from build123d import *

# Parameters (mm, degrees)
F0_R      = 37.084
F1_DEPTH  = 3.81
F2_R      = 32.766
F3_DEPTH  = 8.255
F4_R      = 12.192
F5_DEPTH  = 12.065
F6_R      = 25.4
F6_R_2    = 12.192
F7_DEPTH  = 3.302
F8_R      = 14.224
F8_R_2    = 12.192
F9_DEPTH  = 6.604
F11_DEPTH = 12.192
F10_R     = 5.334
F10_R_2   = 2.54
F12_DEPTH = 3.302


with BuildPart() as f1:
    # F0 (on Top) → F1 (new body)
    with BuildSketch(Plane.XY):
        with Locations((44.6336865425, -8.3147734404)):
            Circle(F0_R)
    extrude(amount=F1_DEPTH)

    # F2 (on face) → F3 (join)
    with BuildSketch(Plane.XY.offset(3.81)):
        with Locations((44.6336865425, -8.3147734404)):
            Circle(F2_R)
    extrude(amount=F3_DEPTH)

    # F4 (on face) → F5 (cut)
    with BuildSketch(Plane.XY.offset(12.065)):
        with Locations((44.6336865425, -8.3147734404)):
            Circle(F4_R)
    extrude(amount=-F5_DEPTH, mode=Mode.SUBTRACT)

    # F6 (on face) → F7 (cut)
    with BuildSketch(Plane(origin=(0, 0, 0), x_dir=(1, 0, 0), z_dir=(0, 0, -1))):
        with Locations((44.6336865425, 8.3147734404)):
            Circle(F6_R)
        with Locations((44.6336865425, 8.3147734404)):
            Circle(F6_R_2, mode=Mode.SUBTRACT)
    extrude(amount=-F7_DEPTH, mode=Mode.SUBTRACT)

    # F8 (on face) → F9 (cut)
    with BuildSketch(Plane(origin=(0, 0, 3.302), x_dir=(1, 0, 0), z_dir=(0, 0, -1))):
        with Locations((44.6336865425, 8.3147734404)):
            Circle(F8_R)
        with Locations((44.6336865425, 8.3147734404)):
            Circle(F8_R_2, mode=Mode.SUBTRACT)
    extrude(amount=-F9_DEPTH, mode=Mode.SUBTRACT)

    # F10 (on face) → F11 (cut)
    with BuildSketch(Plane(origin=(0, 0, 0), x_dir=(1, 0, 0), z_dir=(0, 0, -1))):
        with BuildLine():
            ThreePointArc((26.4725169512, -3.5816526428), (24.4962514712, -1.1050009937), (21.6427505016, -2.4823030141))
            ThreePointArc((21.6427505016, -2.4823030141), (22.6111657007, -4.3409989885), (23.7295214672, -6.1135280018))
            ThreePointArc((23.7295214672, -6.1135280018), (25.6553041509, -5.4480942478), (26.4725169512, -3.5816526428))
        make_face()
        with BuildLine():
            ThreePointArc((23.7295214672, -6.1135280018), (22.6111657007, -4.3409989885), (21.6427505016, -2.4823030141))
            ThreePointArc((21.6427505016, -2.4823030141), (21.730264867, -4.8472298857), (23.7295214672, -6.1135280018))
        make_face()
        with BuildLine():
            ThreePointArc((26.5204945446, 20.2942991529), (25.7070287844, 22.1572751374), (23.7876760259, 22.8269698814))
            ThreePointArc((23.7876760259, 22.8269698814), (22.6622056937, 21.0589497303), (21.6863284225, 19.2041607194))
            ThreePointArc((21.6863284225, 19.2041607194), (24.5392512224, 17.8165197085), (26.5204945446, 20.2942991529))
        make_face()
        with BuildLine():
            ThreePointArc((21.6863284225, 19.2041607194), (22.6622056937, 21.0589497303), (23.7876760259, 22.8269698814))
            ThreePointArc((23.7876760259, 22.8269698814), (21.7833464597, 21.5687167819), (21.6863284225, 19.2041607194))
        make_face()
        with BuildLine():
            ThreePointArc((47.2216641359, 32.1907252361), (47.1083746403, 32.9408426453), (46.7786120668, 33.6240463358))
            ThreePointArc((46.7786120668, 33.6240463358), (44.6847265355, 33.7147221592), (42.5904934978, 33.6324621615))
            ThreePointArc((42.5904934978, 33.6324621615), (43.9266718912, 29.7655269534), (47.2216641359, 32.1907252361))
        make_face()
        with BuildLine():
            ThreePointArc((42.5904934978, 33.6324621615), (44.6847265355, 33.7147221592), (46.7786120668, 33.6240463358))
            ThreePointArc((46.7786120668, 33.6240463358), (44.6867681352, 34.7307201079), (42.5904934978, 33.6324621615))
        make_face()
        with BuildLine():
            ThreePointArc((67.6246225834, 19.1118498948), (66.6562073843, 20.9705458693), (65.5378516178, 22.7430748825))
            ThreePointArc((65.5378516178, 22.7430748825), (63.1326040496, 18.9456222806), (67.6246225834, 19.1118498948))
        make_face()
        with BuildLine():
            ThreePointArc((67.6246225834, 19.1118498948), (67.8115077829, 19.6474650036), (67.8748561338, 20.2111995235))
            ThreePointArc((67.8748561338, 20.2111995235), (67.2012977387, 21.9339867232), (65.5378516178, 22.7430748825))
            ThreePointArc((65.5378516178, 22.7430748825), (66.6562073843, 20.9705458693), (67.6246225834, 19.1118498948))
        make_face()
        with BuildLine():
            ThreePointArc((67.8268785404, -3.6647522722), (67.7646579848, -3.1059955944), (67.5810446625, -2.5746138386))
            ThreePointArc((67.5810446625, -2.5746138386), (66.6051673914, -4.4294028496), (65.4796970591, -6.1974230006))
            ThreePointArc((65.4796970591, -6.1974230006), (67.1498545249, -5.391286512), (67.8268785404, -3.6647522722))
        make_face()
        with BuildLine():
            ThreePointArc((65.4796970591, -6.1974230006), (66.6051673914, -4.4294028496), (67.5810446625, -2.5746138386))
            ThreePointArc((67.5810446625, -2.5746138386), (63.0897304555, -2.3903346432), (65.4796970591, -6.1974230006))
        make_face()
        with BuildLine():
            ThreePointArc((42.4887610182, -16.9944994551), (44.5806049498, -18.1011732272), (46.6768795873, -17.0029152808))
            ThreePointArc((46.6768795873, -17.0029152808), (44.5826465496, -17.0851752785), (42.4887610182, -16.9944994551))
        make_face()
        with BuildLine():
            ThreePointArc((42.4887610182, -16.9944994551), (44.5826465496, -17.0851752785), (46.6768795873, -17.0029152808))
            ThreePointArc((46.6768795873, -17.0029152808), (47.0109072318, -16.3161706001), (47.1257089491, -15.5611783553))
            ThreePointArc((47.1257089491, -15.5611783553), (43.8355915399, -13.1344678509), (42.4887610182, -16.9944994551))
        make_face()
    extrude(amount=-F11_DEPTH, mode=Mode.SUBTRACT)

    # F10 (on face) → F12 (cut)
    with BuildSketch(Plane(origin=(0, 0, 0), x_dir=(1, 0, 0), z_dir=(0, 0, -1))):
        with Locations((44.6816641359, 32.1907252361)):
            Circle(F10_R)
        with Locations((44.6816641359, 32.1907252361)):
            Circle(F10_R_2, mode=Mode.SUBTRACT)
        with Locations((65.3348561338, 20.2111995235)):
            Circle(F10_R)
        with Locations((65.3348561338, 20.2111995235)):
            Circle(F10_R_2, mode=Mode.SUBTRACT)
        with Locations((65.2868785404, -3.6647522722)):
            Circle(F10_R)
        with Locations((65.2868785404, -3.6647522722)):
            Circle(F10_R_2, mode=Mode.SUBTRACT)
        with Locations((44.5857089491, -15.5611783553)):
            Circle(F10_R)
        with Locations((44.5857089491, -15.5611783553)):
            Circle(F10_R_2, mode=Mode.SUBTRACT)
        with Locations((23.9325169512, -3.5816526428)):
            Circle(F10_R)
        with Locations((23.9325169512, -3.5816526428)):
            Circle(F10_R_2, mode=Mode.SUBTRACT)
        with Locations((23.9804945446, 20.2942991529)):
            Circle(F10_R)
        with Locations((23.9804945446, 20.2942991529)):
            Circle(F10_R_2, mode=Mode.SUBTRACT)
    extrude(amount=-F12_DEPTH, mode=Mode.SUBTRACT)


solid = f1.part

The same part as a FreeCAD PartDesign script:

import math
import FreeCAD as App
import Part
import Sketcher
from FreeCAD import Vector
Q = App.Units.Quantity

doc = App.newDocument("Part")
body = doc.addObject("PartDesign::Body", "Body")

sketch1 = body.newObject("Sketcher::SketchObject", "Sketch")
sketch1.AttachmentSupport = (doc.getObject("XY_Plane"), [""])
sketch1.MapMode = "FlatFace"
sketch1.addGeometry(Part.Circle(Vector(45, -8, 0), Vector(0, 0, 1), 37), False)
sketch1.addConstraint([
    Sketcher.Constraint("Diameter", 0, Q("2.92 in")),
    Sketcher.Constraint("DistanceX", -1, 1, 0, 3, Q("44.633687 mm")),
    Sketcher.Constraint("DistanceY", 0, 3, -1, 1, Q("8.314773 mm")),
])
pad1 = body.newObject("PartDesign::Pad", "Pad")
pad1.Profile = sketch1
pad1.Length = Q("0.15 in")

sketch2 = body.newObject("Sketcher::SketchObject", "Sketch001")
sketch2.AttachmentSupport = (doc.getObject("XY_Plane"), [""])
sketch2.MapMode = "FlatFace"
sketch2.AttachmentOffset = App.Placement(Vector(0, 0, 0.15 * 25.4), App.Rotation())
sketch2.addGeometry(Part.Circle(Vector(45, -8, 0), Vector(0, 0, 1), 33), False)
sketch2.addConstraint([
    Sketcher.Constraint("Diameter", 0, Q("2.58 in")),
    Sketcher.Constraint("DistanceX", -1, 1, 0, 3, Q("44.633687 mm")),
    Sketcher.Constraint("DistanceY", 0, 3, -1, 1, Q("8.314773 mm")),
])
pad2 = body.newObject("PartDesign::Pad", "Pad001")
pad2.Profile = sketch2
pad2.Length = Q("0.325 in")

sketch3 = body.newObject("Sketcher::SketchObject", "Sketch002")
sketch3.AttachmentSupport = (doc.getObject("XY_Plane"), [""])
sketch3.MapMode = "FlatFace"
sketch3.AttachmentOffset = App.Placement(Vector(0, 0, 0.475 * 25.4), App.Rotation())
sketch3.addGeometry(Part.Circle(Vector(45, -8, 0), Vector(0, 0, 1), 12), False)
sketch3.addConstraint([
    Sketcher.Constraint("Diameter", 0, Q("0.96 in")),
    Sketcher.Constraint("DistanceX", -1, 1, 0, 3, Q("44.633687 mm")),
    Sketcher.Constraint("DistanceY", 0, 3, -1, 1, Q("8.314773 mm")),
])
pocket1 = body.newObject("PartDesign::Pocket", "Pocket")
pocket1.Profile = sketch3
pocket1.Length = Q("0.475 in")

sketch4 = body.newObject("Sketcher::SketchObject", "Sketch003")
sketch4.AttachmentSupport = (doc.getObject("XY_Plane"), [""])
sketch4.MapMode = "FlatFace"
sketch4.addGeometry([
    Part.Circle(Vector(45, -8, 0), Vector(0, 0, 1), 25),
    Part.Circle(Vector(45, -8, 0), Vector(0, 0, 1), 12),
], False)
sketch4.addConstraint([
    Sketcher.Constraint("Coincident", 1, 3, 0, 3),
    Sketcher.Constraint("Diameter", 0, Q("2 in")),
    Sketcher.Constraint("Diameter", 1, Q("0.96 in")),
    Sketcher.Constraint("DistanceX", -1, 1, 0, 3, Q("44.633687 mm")),
    Sketcher.Constraint("DistanceY", 0, 3, -1, 1, Q("8.314773 mm")),
])
pocket2 = body.newObject("PartDesign::Pocket", "Pocket001")
pocket2.Profile = sketch4
pocket2.Length = Q("0.13 in")
pocket2.Reversed = True

sketch5 = body.newObject("Sketcher::SketchObject", "Sketch004")
sketch5.AttachmentSupport = (doc.getObject("XY_Plane"), [""])
sketch5.MapMode = "FlatFace"
sketch5.AttachmentOffset = App.Placement(Vector(0, 0, 0.13 * 25.4), App.Rotation())
sketch5.addGeometry([
    Part.Circle(Vector(45, -8, 0), Vector(0, 0, 1), 14),
    Part.Circle(Vector(45, -8, 0), Vector(0, 0, 1), 12),
], False)
sketch5.addConstraint([
    Sketcher.Constraint("Coincident", 1, 3, 0, 3),
    Sketcher.Constraint("Diameter", 0, Q("1.12 in")),
    Sketcher.Constraint("Diameter", 1, Q("0.96 in")),
    Sketcher.Constraint("DistanceX", -1, 1, 0, 3, Q("44.633687 mm")),
    Sketcher.Constraint("DistanceY", 0, 3, -1, 1, Q("8.314773 mm")),
])
pocket3 = body.newObject("PartDesign::Pocket", "Pocket002")
pocket3.Profile = sketch5
pocket3.Length = Q("0.26 in")
pocket3.Reversed = True

sketch6 = body.newObject("Sketcher::SketchObject", "Sketch005")
sketch6.AttachmentSupport = (doc.getObject("XY_Plane"), [""])
sketch6.MapMode = "FlatFace"
sketch6.addGeometry([
    Part.ArcOfCircle(Part.Circle(Vector(23.9, 3.6, 0), Vector(0, 0, 1), 2.5), math.radians(-154), math.radians(0)),
    Part.ArcOfCircle(Part.Circle(Vector(23.9, 3.6, 0), Vector(0, 0, 1), 2.5), math.radians(95), math.radians(206)),
    Part.ArcOfCircle(Part.Circle(Vector(23.9, 3.6, 0), Vector(0, 0, 1), 2.5), math.radians(0), math.radians(95)),
    Part.ArcOfCircle(Part.Circle(Vector(24, -20.3, 0), Vector(0, 0, 1), 2.5), math.radians(-94), math.radians(0)),
    Part.ArcOfCircle(Part.Circle(Vector(24, -20.3, 0), Vector(0, 0, 1), 2.5), math.radians(155), math.radians(266)),
    Part.ArcOfCircle(Part.Circle(Vector(24, -20.3, 0), Vector(0, 0, 1), 2.5), math.radians(0), math.radians(155)),
    Part.ArcOfCircle(Part.Circle(Vector(44.7, -32.2, 0), Vector(0, 0, 1), 2.5), math.radians(-34), math.radians(0)),
    Part.ArcOfCircle(Part.Circle(Vector(44.7, -32.2, 0), Vector(0, 0, 1), 2.5), math.radians(-145), math.radians(-34)),
    Part.ArcOfCircle(Part.Circle(Vector(44.7, -32.2, 0), Vector(0, 0, 1), 2.5), math.radians(0), math.radians(215)),
    Part.ArcOfCircle(Part.Circle(Vector(65.3, -20.2, 0), Vector(0, 0, 1), 2.5), math.radians(26), math.radians(275)),
    Part.ArcOfCircle(Part.Circle(Vector(65.3, -20.2, 0), Vector(0, 0, 1), 2.5), math.radians(0), math.radians(26)),
    Part.ArcOfCircle(Part.Circle(Vector(65.3, -20.2, 0), Vector(0, 0, 1), 2.5), math.radians(-85), math.radians(0)),
    Part.ArcOfCircle(Part.Circle(Vector(65.3, 3.7, 0), Vector(0, 0, 1), 2.5), math.radians(-25), math.radians(0)),
    Part.ArcOfCircle(Part.Circle(Vector(65.3, 3.7, 0), Vector(0, 0, 1), 2.5), math.radians(86), math.radians(335)),
    Part.ArcOfCircle(Part.Circle(Vector(65.3, 3.7, 0), Vector(0, 0, 1), 2.5), math.radians(0), math.radians(86)),
    Part.ArcOfCircle(Part.Circle(Vector(44.6, 15.6, 0), Vector(0, 0, 1), 2.5), math.radians(35), math.radians(146)),
    Part.ArcOfCircle(Part.Circle(Vector(44.6, 15.6, 0), Vector(0, 0, 1), 2.5), math.radians(0), math.radians(35)),
    Part.ArcOfCircle(Part.Circle(Vector(44.6, 15.6, 0), Vector(0, 0, 1), 2.5), math.radians(146), math.radians(360)),
], False)
sketch6.addConstraint([
    Sketcher.Constraint("Tangent", 0, 1, 1, 2),
    Sketcher.Constraint("Tangent", 1, 1, 2, 2),
    Sketcher.Constraint("Tangent", 2, 1, 0, 2),
    Sketcher.Constraint("Tangent", 3, 1, 4, 2),
    Sketcher.Constraint("Tangent", 4, 1, 5, 2),
    Sketcher.Constraint("Tangent", 5, 1, 3, 2),
    Sketcher.Constraint("Tangent", 6, 1, 7, 2),
    Sketcher.Constraint("Tangent", 7, 1, 8, 2),
    Sketcher.Constraint("Tangent", 8, 1, 6, 2),
    Sketcher.Constraint("Tangent", 9, 1, 10, 2),
    Sketcher.Constraint("Tangent", 10, 1, 11, 2),
    Sketcher.Constraint("Tangent", 11, 1, 9, 2),
    Sketcher.Constraint("Tangent", 12, 1, 13, 2),
    Sketcher.Constraint("Tangent", 13, 1, 14, 2),
    Sketcher.Constraint("Tangent", 14, 1, 12, 2),
    Sketcher.Constraint("Tangent", 15, 1, 16, 2),
    Sketcher.Constraint("Tangent", 16, 1, 17, 2),
    Sketcher.Constraint("Tangent", 17, 1, 15, 2),
    Sketcher.Constraint("Equal", 2, 3),
    Sketcher.Constraint("Equal", 5, 6),
    Sketcher.Constraint("Equal", 8, 9),
    Sketcher.Constraint("Equal", 11, 12),
    Sketcher.Constraint("Equal", 14, 15),
    Sketcher.Constraint("Horizontal", 1, 3, 2, 1),
    Sketcher.Constraint("Horizontal", 4, 3, 5, 1),
    Sketcher.Constraint("Horizontal", 7, 3, 8, 1),
    Sketcher.Constraint("Horizontal", 11, 3, 10, 1),
    Sketcher.Constraint("Horizontal", 13, 3, 14, 1),
    Sketcher.Constraint("Horizontal", 17, 3, 16, 1),
    Sketcher.Constraint("Radius", 0, Q("0.1 in")),
    Sketcher.Constraint("DistanceY", 3, 3, -1, 1, Q("20.294299 mm")),
    Sketcher.Constraint("DistanceY", 9, 3, -1, 1, Q("20.2112 mm")),
    Sketcher.Constraint("DistanceY", -1, 1, 17, 1, Q("16.994499 mm")),
    Sketcher.Constraint("DistanceX", 5, 1, 7, 1, Q("16.069999 mm")),
    Sketcher.Constraint("DistanceX", 15, 1, 12, 3, Q("18.609999 mm")),
    Sketcher.Constraint("DistanceX", -1, 1, 12, 3, Q("65.286879 mm")),
    Sketcher.Constraint("DistanceX", -1, 1, 15, 3, Q("44.585709 mm")),
    Sketcher.Constraint("DistanceY", -1, 1, 15, 3, Q("15.561178 mm")),
    Sketcher.Constraint("DistanceX", -1, 1, 0, 1, Q("21.642751 mm")),
    Sketcher.Constraint("DistanceX", -1, 1, 1, 1, Q("23.729521 mm")),
    Sketcher.Constraint("DistanceY", -1, 1, 1, 1, Q("6.113528 mm")),
    Sketcher.Constraint("DistanceY", 3, 1, -1, 1, Q("22.82697 mm")),
    Sketcher.Constraint("DistanceX", -1, 1, 4, 1, Q("21.686328 mm")),
    Sketcher.Constraint("DistanceY", 4, 1, -1, 1, Q("19.204161 mm")),
    Sketcher.Constraint("DistanceY", 9, 1, -1, 1, Q("19.11185 mm")),
    Sketcher.Constraint("DistanceX", -1, 1, 11, 1, Q("65.537852 mm")),
    Sketcher.Constraint("DistanceY", 3, 3, 0, 3, Q("23.875952 mm")),
    Sketcher.Constraint("DistanceX", 3, 3, 6, 3, Q("20.70117 mm")),
    Sketcher.Constraint("DistanceX", 7, 3, 9, 3, Q("20.653192 mm")),
    Sketcher.Constraint("DistanceY", 11, 3, 12, 3, Q("23.875952 mm")),
    Sketcher.Constraint("DistanceY", 6, 1, 7, 3, Q("1.433321 mm")),
    Sketcher.Constraint("DistanceY", 12, 1, 14, 3, Q("1.090138 mm")),
    Sketcher.Constraint("DistanceX", 14, 3, 13, 1, Q("0.192819 mm")),
    Sketcher.Constraint("DistanceY", 6, 3, -1, 1, Q("32.190725 mm")),
])
pocket4 = body.newObject("PartDesign::Pocket", "Pocket003")
pocket4.Profile = sketch6
pocket4.Length = Q("0.48 in")
pocket4.Reversed = True

sketch7 = body.newObject("Sketcher::SketchObject", "Sketch006")
sketch7.AttachmentSupport = (doc.getObject("XY_Plane"), [""])
sketch7.MapMode = "FlatFace"
sketch7.addGeometry([
    Part.Circle(Vector(44.7, -32.2, 0), Vector(0, 0, 1), 5.3),
    Part.Circle(Vector(44.7, -32.2, 0), Vector(0, 0, 1), 2.5),
    Part.Circle(Vector(65.3, -20.2, 0), Vector(0, 0, 1), 5.3),
    Part.Circle(Vector(65.3, -20.2, 0), Vector(0, 0, 1), 2.5),
    Part.Circle(Vector(65.3, 3.7, 0), Vector(0, 0, 1), 5.3),
    Part.Circle(Vector(65.3, 3.7, 0), Vector(0, 0, 1), 2.5),
    Part.Circle(Vector(44.6, 15.6, 0), Vector(0, 0, 1), 5.3),
    Part.Circle(Vector(44.6, 15.6, 0), Vector(0, 0, 1), 2.5),
    Part.Circle(Vector(23.9, 3.6, 0), Vector(0, 0, 1), 5.3),
    Part.Circle(Vector(23.9, 3.6, 0), Vector(0, 0, 1), 2.5),
    Part.Circle(Vector(24, -20.3, 0), Vector(0, 0, 1), 5.3),
    Part.Circle(Vector(24, -20.3, 0), Vector(0, 0, 1), 2.5),
], False)
sketch7.addConstraint([
    Sketcher.Constraint("Coincident", 1, 3, 0, 3),
    Sketcher.Constraint("Coincident", 3, 3, 2, 3),
    Sketcher.Constraint("Coincident", 5, 3, 4, 3),
    Sketcher.Constraint("Coincident", 7, 3, 6, 3),
    Sketcher.Constraint("Coincident", 9, 3, 8, 3),
    Sketcher.Constraint("Coincident", 11, 3, 10, 3),
    Sketcher.Constraint("Equal", 0, 2),
    Sketcher.Constraint("Equal", 1, 3),
    Sketcher.Constraint("Equal", 2, 4),
    Sketcher.Constraint("Equal", 3, 5),
    Sketcher.Constraint("Equal", 4, 6),
    Sketcher.Constraint("Equal", 5, 7),
    Sketcher.Constraint("Equal", 6, 8),
    Sketcher.Constraint("Equal", 7, 9),
    Sketcher.Constraint("Equal", 8, 10),
    Sketcher.Constraint("Equal", 9, 11),
    Sketcher.Constraint("Diameter", 1, Q("0.2 in")),
    Sketcher.Constraint("Diameter", 0, Q("0.42 in")),
    Sketcher.Constraint("DistanceY", 2, 3, -1, 1, Q("20.2112 mm")),
    Sketcher.Constraint("DistanceY", 10, 3, -1, 1, Q("20.294299 mm")),
    Sketcher.Constraint("DistanceY", 8, 3, 4, 3, Q("0.0831 mm")),
    Sketcher.Constraint("DistanceX", -1, 1, 4, 3, Q("65.286879 mm")),
    Sketcher.Constraint("DistanceX", -1, 1, 6, 3, Q("44.585709 mm")),
    Sketcher.Constraint("DistanceY", -1, 1, 6, 3, Q("15.561178 mm")),
    Sketcher.Constraint("DistanceX", 0, 3, 2, 3, Q("20.653192 mm")),
    Sketcher.Constraint("DistanceY", 2, 3, 4, 3, Q("23.875952 mm")),
    Sketcher.Constraint("DistanceX", 8, 3, 6, 3, Q("20.653192 mm")),
    Sketcher.Constraint("DistanceX", 10, 3, 0, 3, Q("20.70117 mm")),
    Sketcher.Constraint("DistanceX", -1, 1, 0, 3, Q("44.681664 mm")),
    Sketcher.Constraint("DistanceY", 0, 3, -1, 1, Q("32.190725 mm")),
])
pocket5 = body.newObject("PartDesign::Pocket", "Pocket004")
pocket5.Profile = sketch7
pocket5.Length = Q("0.13 in")
pocket5.Reversed = True

doc.recompute()
